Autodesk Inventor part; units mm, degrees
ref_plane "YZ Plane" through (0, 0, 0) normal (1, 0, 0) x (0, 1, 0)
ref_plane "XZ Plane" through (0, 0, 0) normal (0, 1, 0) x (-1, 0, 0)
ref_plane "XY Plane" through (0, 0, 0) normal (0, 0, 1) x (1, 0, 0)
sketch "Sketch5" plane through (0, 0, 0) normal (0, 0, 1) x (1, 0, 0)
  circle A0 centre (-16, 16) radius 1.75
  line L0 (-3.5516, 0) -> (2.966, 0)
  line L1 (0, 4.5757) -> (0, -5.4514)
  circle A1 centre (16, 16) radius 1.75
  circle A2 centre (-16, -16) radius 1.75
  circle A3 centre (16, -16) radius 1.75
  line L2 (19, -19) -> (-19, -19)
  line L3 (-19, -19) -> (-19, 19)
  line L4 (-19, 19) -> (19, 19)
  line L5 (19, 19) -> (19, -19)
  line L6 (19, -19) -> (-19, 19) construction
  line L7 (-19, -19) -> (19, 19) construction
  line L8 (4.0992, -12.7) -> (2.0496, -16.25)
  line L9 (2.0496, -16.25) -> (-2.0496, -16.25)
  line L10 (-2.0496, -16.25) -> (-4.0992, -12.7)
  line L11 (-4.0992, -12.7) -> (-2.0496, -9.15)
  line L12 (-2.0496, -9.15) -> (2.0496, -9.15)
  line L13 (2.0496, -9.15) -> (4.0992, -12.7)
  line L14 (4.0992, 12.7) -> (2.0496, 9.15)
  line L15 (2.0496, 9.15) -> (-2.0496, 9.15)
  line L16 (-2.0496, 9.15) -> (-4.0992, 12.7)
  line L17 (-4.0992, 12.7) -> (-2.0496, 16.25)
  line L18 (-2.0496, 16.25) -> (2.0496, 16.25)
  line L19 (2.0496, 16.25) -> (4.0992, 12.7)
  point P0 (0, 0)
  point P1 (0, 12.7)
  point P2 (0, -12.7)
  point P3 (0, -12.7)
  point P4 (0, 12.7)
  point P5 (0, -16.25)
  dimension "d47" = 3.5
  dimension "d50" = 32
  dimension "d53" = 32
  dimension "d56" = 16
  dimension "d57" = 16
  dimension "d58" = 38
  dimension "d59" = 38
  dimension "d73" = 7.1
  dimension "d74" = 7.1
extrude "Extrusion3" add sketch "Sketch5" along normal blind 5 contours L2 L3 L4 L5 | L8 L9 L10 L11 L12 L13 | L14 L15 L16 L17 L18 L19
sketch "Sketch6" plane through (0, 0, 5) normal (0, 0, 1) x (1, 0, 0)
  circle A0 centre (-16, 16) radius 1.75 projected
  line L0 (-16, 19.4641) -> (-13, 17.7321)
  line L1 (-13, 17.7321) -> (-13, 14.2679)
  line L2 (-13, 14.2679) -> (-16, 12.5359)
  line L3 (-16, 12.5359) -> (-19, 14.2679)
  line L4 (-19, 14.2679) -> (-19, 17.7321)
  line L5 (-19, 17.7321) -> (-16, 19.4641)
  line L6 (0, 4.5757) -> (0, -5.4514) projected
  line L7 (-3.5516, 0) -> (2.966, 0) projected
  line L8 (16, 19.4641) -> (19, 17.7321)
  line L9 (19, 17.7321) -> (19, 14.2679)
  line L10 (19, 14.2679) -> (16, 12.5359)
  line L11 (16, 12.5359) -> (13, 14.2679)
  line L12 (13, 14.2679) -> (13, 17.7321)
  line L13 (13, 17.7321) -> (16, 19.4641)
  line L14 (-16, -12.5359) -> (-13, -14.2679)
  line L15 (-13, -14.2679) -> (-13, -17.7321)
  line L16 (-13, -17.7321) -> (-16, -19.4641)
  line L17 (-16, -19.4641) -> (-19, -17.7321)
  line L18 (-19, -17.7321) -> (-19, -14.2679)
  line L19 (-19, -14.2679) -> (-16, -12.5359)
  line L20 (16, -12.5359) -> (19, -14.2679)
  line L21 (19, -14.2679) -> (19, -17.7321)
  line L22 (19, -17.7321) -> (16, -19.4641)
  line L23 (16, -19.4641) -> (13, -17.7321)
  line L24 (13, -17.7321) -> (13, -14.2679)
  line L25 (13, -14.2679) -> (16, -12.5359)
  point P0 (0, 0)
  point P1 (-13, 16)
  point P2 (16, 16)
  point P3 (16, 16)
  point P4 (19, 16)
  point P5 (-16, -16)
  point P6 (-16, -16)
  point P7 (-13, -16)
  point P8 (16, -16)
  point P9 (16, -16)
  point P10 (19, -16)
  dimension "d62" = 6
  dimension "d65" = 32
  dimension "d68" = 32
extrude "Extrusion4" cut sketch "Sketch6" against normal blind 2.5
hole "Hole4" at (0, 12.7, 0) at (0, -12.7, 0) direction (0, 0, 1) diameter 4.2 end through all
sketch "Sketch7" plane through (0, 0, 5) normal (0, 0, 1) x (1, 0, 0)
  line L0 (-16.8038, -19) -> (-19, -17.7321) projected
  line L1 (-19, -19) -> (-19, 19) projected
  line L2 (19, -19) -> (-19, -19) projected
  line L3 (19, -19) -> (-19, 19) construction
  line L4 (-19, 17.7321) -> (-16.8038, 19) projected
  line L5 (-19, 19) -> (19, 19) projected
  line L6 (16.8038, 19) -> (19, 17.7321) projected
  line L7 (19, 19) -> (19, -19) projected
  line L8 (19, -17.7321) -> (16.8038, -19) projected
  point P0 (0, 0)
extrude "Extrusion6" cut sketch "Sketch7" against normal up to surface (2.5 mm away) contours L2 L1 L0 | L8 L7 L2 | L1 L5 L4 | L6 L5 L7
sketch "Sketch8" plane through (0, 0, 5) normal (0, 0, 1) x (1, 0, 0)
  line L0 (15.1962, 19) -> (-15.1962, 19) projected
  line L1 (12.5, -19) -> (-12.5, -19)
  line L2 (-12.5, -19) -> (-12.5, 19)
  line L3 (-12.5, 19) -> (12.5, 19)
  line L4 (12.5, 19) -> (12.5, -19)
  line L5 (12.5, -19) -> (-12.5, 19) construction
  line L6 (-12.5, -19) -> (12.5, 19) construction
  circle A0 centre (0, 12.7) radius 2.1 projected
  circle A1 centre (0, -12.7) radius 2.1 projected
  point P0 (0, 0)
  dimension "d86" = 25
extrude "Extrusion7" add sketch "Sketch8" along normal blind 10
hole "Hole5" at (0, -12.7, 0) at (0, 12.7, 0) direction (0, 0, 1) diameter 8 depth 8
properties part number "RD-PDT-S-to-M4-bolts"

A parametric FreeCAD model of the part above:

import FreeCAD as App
import Part
import Sketcher
Q = App.Units.Quantity

doc = App.newDocument("Part")
body = doc.addObject("PartDesign::Body", "Body")

sketch1 = body.newObject("Sketcher::SketchObject", "Sketch")
sketch1.AttachmentSupport = (doc.getObject("XY_Plane"), [""])
sketch1.MapMode = "FlatFace"
sketch1.addGeometry([
    Part.LineSegment(App.Vector(-19, -19, 0), App.Vector(19, -19, 0)),
    Part.LineSegment(App.Vector(19, -19, 0), App.Vector(19, 19, 0)),
    Part.LineSegment(App.Vector(19, 19, 0), App.Vector(-19, 19, 0)),
    Part.LineSegment(App.Vector(-19, 19, 0), App.Vector(-19, -19, 0)),
    Part.Circle(App.Vector(-16, -16, 0), App.Vector(0, 0, 1), 1.8),
    Part.Circle(App.Vector(16, -16, 0), App.Vector(0, 0, 1), 1.8),
    Part.Circle(App.Vector(-16, 16, 0), App.Vector(0, 0, 1), 1.8),
    Part.Circle(App.Vector(16, 16, 0), App.Vector(0, 0, 1), 1.8),
], False)
sketch1.addConstraint([
    Sketcher.Constraint("Coincident", 0, 2, 1, 1),
    Sketcher.Constraint("Coincident", 1, 2, 2, 1),
    Sketcher.Constraint("Coincident", 2, 2, 3, 1),
    Sketcher.Constraint("Coincident", 3, 2, 0, 1),
    Sketcher.Constraint("Horizontal", 0),
    Sketcher.Constraint("Vertical", 1),
    Sketcher.Constraint("Horizontal", 2),
    Sketcher.Constraint("Vertical", 3),
    Sketcher.Constraint("Equal", 4, 5),
    Sketcher.Constraint("Equal", 5, 6),
    Sketcher.Constraint("Equal", 6, 7),
    Sketcher.Constraint("Symmetric", 5, 3, 6, 3, -1, 1),
    Sketcher.Constraint("Symmetric", 4, 3, 7, 3, -1, 1),
    Sketcher.Constraint("Symmetric", 0, 2, 2, 2, -1, 1),
    Sketcher.Constraint("Symmetric", 4, 3, 5, 3, -2),
    Sketcher.Constraint("Equal", 2, 1),
    Sketcher.Constraint("Diameter", 4, 3.5),
    Sketcher.Constraint("DistanceX", 0, 1, 0, 2, 38.0),
    Sketcher.Constraint("DistanceX", 4, 3, -1, 1, 16.0),
    Sketcher.Constraint("DistanceY", 4, 3, -1, 1, 16.0),
])
pad1 = body.newObject("PartDesign::Pad", "Pad")
pad1.Profile = sketch1
pad1.Length = 5

sketch2 = body.newObject("Sketcher::SketchObject", "Sketch001")
sketch2.AttachmentSupport = (doc.getObject("XY_Plane"), [""])
sketch2.MapMode = "FlatFace"
sketch2.AttachmentOffset = App.Placement(App.Vector(0, 0, 5), App.Rotation())
sketch2.addGeometry([
    Part.LineSegment(App.Vector(-13, 17.7, 0), App.Vector(-16, 19.5, 0)),
    Part.LineSegment(App.Vector(-16, 19.5, 0), App.Vector(-19, 17.7, 0)),
    Part.LineSegment(App.Vector(-19, 17.7, 0), App.Vector(-19, 14.3, 0)),
    Part.LineSegment(App.Vector(-19, 14.3, 0), App.Vector(-16, 12.5, 0)),
    Part.LineSegment(App.Vector(-16, 12.5, 0), App.Vector(-13, 14.3, 0)),
    Part.LineSegment(App.Vector(-13, 14.3, 0), App.Vector(-13, 17.7, 0)),
    Part.Circle(App.Vector(-16, 16, 0), App.Vector(0, 0, 1), 1.8),
    Part.LineSegment(App.Vector(19, 17.7, 0), App.Vector(16, 19.5, 0)),
    Part.LineSegment(App.Vector(16, 19.5, 0), App.Vector(13, 17.7, 0)),
    Part.LineSegment(App.Vector(13, 17.7, 0), App.Vector(13, 14.3, 0)),
    Part.LineSegment(App.Vector(13, 14.3, 0), App.Vector(16, 12.5, 0)),
    Part.LineSegment(App.Vector(16, 12.5, 0), App.Vector(19, 14.3, 0)),
    Part.LineSegment(App.Vector(19, 14.3, 0), App.Vector(19, 17.7, 0)),
    Part.LineSegment(App.Vector(-13, -14.3, 0), App.Vector(-16, -12.5, 0)),
    Part.LineSegment(App.Vector(-16, -12.5, 0), App.Vector(-19, -14.3, 0)),
    Part.LineSegment(App.Vector(-19, -14.3, 0), App.Vector(-19, -17.7, 0)),
    Part.LineSegment(App.Vector(-19, -17.7, 0), App.Vector(-16, -19.5, 0)),
    Part.LineSegment(App.Vector(-16, -19.5, 0), App.Vector(-13, -17.7, 0)),
    Part.LineSegment(App.Vector(-13, -17.7, 0), App.Vector(-13, -14.3, 0)),
    Part.LineSegment(App.Vector(19, -14.3, 0), App.Vector(16, -12.5, 0)),
    Part.LineSegment(App.Vector(16, -12.5, 0), App.Vector(13, -14.3, 0)),
    Part.LineSegment(App.Vector(13, -14.3, 0), App.Vector(13, -17.7, 0)),
    Part.LineSegment(App.Vector(13, -17.7, 0), App.Vector(16, -19.5, 0)),
    Part.LineSegment(App.Vector(16, -19.5, 0), App.Vector(19, -17.7, 0)),
    Part.LineSegment(App.Vector(19, -17.7, 0), App.Vector(19, -14.3, 0)),
], False)
sketch2.addConstraint([
    Sketcher.Constraint("Coincident", 0, 2, 1, 1),
    Sketcher.Constraint("Coincident", 1, 2, 2, 1),
    Sketcher.Constraint("Coincident", 2, 2, 3, 1),
    Sketcher.Constraint("Coincident", 3, 2, 4, 1),
    Sketcher.Constraint("Coincident", 4, 2, 5, 1),
    Sketcher.Constraint("Coincident", 5, 2, 0, 1),
    Sketcher.Constraint("Coincident", 7, 2, 8, 1),
    Sketcher.Constraint("Coincident", 8, 2, 9, 1),
    Sketcher.Constraint("Coincident", 9, 2, 10, 1),
    Sketcher.Constraint("Coincident", 10, 2, 11, 1),
    Sketcher.Constraint("Coincident", 11, 2, 12, 1),
    Sketcher.Constraint("Coincident", 12, 2, 7, 1),
    Sketcher.Constraint("Coincident", 13, 2, 14, 1),
    Sketcher.Constraint("Coincident", 14, 2, 15, 1),
    Sketcher.Constraint("Coincident", 15, 2, 16, 1),
    Sketcher.Constraint("Coincident", 16, 2, 17, 1),
    Sketcher.Constraint("Coincident", 17, 2, 18, 1),
    Sketcher.Constraint("Coincident", 18, 2, 13, 1),
    Sketcher.Constraint("Coincident", 19, 2, 20, 1),
    Sketcher.Constraint("Coincident", 20, 2, 21, 1),
    Sketcher.Constraint("Coincident", 21, 2, 22, 1),
    Sketcher.Constraint("Coincident", 22, 2, 23, 1),
    Sketcher.Constraint("Coincident", 23, 2, 24, 1),
    Sketcher.Constraint("Coincident", 24, 2, 19, 1),
    Sketcher.Constraint("Vertical", 2),
    Sketcher.Constraint("Vertical", 5),
    Sketcher.Constraint("Vertical", 9),
    Sketcher.Constraint("Vertical", 12),
    Sketcher.Constraint("Vertical", 15),
    Sketcher.Constraint("Vertical", 18),
    Sketcher.Constraint("Vertical", 21),
    Sketcher.Constraint("Vertical", 24),
    Sketcher.Constraint("Symmetric", 10, 2, 13, 2, -1, 1),
    Sketcher.Constraint("Symmetric", 11, 2, 14, 2, -1, 1),
    Sketcher.Constraint("Symmetric", 7, 2, 16, 2, -1, 1),
    Sketcher.Constraint("Symmetric", 8, 2, 17, 2, -1, 1),
    Sketcher.Constraint("Symmetric", 3, 2, 19, 2, -1, 1),
    Sketcher.Constraint("Symmetric", 4, 2, 20, 2, -1, 1),
    Sketcher.Constraint("Symmetric", 0, 2, 22, 2, -1, 1),
    Sketcher.Constraint("Symmetric", 1, 2, 23, 2, -1, 1),
    Sketcher.Constraint("Symmetric", 0, 2, 7, 2, -2),
    Sketcher.Constraint("Symmetric", 5, 2, 8, 2, -2),
    Sketcher.Constraint("Symmetric", 3, 2, 10, 2, -2),
    Sketcher.Constraint("Symmetric", 2, 2, 11, 2, -2),
    Sketcher.Constraint("Parallel", 0, 3),
    Sketcher.Constraint("Parallel", 1, 4),
    Sketcher.Constraint("Parallel", 3, 7),
    Sketcher.Constraint("Parallel", 4, 8),
    Sketcher.Constraint("Parallel", 7, 10),
    Sketcher.Constraint("Parallel", 10, 13),
    Sketcher.Constraint("Parallel", 13, 16),
    Sketcher.Constraint("Parallel", 16, 19),
    Sketcher.Constraint("Parallel", 19, 22),
    Sketcher.Constraint("Horizontal", 2, 2, 4, 2),
    Sketcher.Constraint("Horizontal", 1, 2, 5, 2),
    Sketcher.Constraint("Vertical", 6, 3, 0, 2),
    Sketcher.Constraint("DistanceX", 2, 2, 4, 2, 6.0),
    Sketcher.Constraint("DistanceX", 0, 2, 7, 2, 32.0),
    Sketcher.Constraint("DistanceY", 15, 2, 2, 2, 32.0),
    Sketcher.Constraint("Diameter", 6, 3.5),
    Sketcher.Constraint("Angle", 0, Q("150.0007 deg")),
    Sketcher.Constraint("DistanceY", -1, 1, 6, 3, 16.0),
    Sketcher.Constraint("DistanceY", 2, 2, 2, 1, 3.4642),
])
pocket1 = body.newObject("PartDesign::Pocket", "Pocket")
pocket1.Profile = sketch2
pocket1.Length = 2.5

sketch3 = body.newObject("Sketcher::SketchObject", "Sketch002")
sketch3.AttachmentSupport = (doc.getObject("XY_Plane"), [""])
sketch3.MapMode = "FlatFace"
sketch3.addGeometry([
    Part.Circle(App.Vector(0, 12.7, 0), App.Vector(0, 0, 1), 2.1),
    Part.Circle(App.Vector(0, -12.7, 0), App.Vector(0, 0, 1), 2.1),
], False)
sketch3.addConstraint([
    Sketcher.Constraint("Equal", 0, 1),
    Sketcher.Constraint("Symmetric", 0, 3, 1, 3, -1, 1),
    Sketcher.Constraint("PointOnObject", 0, 3, -2),
    Sketcher.Constraint("Diameter", 0, 4.2),
    Sketcher.Constraint("DistanceY", -1, 1, 0, 3, 12.7),
])
doc.recompute()
hole = body.newObject("PartDesign::Hole", "Hole")
hole.Profile = sketch3
hole.ThreadType = "None"
hole.Diameter = 4.2
hole.DepthType = "ThroughAll"
hole.Reversed = True

sketch4 = body.newObject("Sketcher::SketchObject", "Sketch003")
sketch4.AttachmentSupport = (doc.getObject("XY_Plane"), [""])
sketch4.MapMode = "FlatFace"
sketch4.AttachmentOffset = App.Placement(App.Vector(0, 0, 5), App.Rotation())
sketch4.addGeometry([
    Part.LineSegment(App.Vector(-19, -19, 0), App.Vector(-16.8, -19, 0)),
    Part.LineSegment(App.Vector(-16.8, -19, 0), App.Vector(-19, -17.7, 0)),
    Part.LineSegment(App.Vector(-19, -17.7, 0), App.Vector(-19, -19, 0)),
    Part.LineSegment(App.Vector(19, -17.7, 0), App.Vector(16.8, -19, 0)),
    Part.LineSegment(App.Vector(16.8, -19, 0), App.Vector(19, -19, 0)),
    Part.LineSegment(App.Vector(19, -19, 0), App.Vector(19, -17.7, 0)),
    Part.LineSegment(App.Vector(-19, 19, 0), App.Vector(-19, 17.7, 0)),
    Part.LineSegment(App.Vector(-19, 17.7, 0), App.Vector(-16.8, 19, 0)),
    Part.LineSegment(App.Vector(-16.8, 19, 0), App.Vector(-19, 19, 0)),
    Part.LineSegment(App.Vector(16.8, 19, 0), App.Vector(19, 17.7, 0)),
    Part.LineSegment(App.Vector(19, 17.7, 0), App.Vector(19, 19, 0)),
    Part.LineSegment(App.Vector(19, 19, 0), App.Vector(16.8, 19, 0)),
], False)
sketch4.addConstraint([
    Sketcher.Constraint("Coincident", 0, 2, 1, 1),
    Sketcher.Constraint("Coincident", 1, 2, 2, 1),
    Sketcher.Constraint("Coincident", 2, 2, 0, 1),
    Sketcher.Constraint("Coincident", 3, 2, 4, 1),
    Sketcher.Constraint("Coincident", 4, 2, 5, 1),
    Sketcher.Constraint("Coincident", 5, 2, 3, 1),
    Sketcher.Constraint("Coincident", 6, 2, 7, 1),
    Sketcher.Constraint("Coincident", 7, 2, 8, 1),
    Sketcher.Constraint("Coincident", 8, 2, 6, 1),
    Sketcher.Constraint("Coincident", 9, 2, 10, 1),
    Sketcher.Constraint("Coincident", 10, 2, 11, 1),
    Sketcher.Constraint("Coincident", 11, 2, 9, 1),
    Sketcher.Constraint("Horizontal", 0),
    Sketcher.Constraint("Vertical", 2),
    Sketcher.Constraint("Horizontal", 4),
    Sketcher.Constraint("Vertical", 5),
    Sketcher.Constraint("Vertical", 6),
    Sketcher.Constraint("Horizontal", 8),
    Sketcher.Constraint("Vertical", 10),
    Sketcher.Constraint("Horizontal", 11),
    Sketcher.Constraint("Symmetric", 5, 2, 6, 2, -1, 1),
    Sketcher.Constraint("Symmetric", 3, 2, 7, 2, -1, 1),
    Sketcher.Constraint("Symmetric", 1, 2, 9, 2, -1, 1),
    Sketcher.Constraint("Symmetric", 0, 2, 11, 2, -1, 1),
    Sketcher.Constraint("Symmetric", 0, 2, 3, 2, -2),
    Sketcher.Constraint("Symmetric", 1, 2, 5, 2, -2),
    Sketcher.Constraint("DistanceY", 0, 2, -1, 1, 19.0),
    Sketcher.Constraint("DistanceX", 1, 2, -1, 1, 19.0),
    Sketcher.Constraint("DistanceY", 2, 2, 2, 1, 1.268),
    Sketcher.Constraint("Distance", 1, 2.536),
])
pocket2 = body.newObject("PartDesign::Pocket", "Pocket001")
pocket2.Profile = sketch4
pocket2.Length = 2.5

sketch5 = body.newObject("Sketcher::SketchObject", "Sketch004")
sketch5.AttachmentSupport = (doc.getObject("XY_Plane"), [""])
sketch5.MapMode = "FlatFace"
sketch5.AttachmentOffset = App.Placement(App.Vector(0, 0, 5), App.Rotation())
sketch5.addGeometry([
    Part.LineSegment(App.Vector(12.5, -19, 0), App.Vector(12.5, 19, 0)),
    Part.LineSegment(App.Vector(12.5, 19, 0), App.Vector(-12.5, 19, 0)),
    Part.LineSegment(App.Vector(-12.5, 19, 0), App.Vector(-12.5, -19, 0)),
    Part.LineSegment(App.Vector(-12.5, -19, 0), App.Vector(12.5, -19, 0)),
    Part.Circle(App.Vector(0, -12.7, 0), App.Vector(0, 0, 1), 2.1),
    Part.Circle(App.Vector(0, 12.7, 0), App.Vector(0, 0, 1), 2.1),
], False)
sketch5.addConstraint([
    Sketcher.Constraint("Coincident", 0, 2, 1, 1),
    Sketcher.Constraint("Coincident", 1, 2, 2, 1),
    Sketcher.Constraint("Coincident", 2, 2, 3, 1),
    Sketcher.Constraint("Coincident", 3, 2, 0, 1),
    Sketcher.Constraint("Vertical", 0),
    Sketcher.Constraint("Horizontal", 1),
    Sketcher.Constraint("Vertical", 2),
    Sketcher.Constraint("Horizontal", 3),
    Sketcher.Constraint("Equal", 4, 5),
    Sketcher.Constraint("Symmetric", 4, 3, 5, 3, -1, 1),
    Sketcher.Constraint("Symmetric", 0, 2, 2, 2, -1, 1),
    Sketcher.Constraint("PointOnObject", 4, 3, -2),
    Sketcher.Constraint("DistanceX", 1, 2, 1, 1, 25.0),
    Sketcher.Constraint("Diameter", 4, 4.2),
    Sketcher.Constraint("DistanceY", 0, 1, 0, 2, 38.0),
    Sketcher.Constraint("DistanceY", 4, 3, -1, 1, 12.7),
])
pad2 = body.newObject("PartDesign::Pad", "Pad001")
pad2.Profile = sketch5
pad2.Length = 10

sketch6 = body.newObject("Sketcher::SketchObject", "Sketch005")
sketch6.AttachmentSupport = (doc.getObject("XY_Plane"), [""])
sketch6.MapMode = "FlatFace"
sketch6.addGeometry([
    Part.Circle(App.Vector(0, -12.7, 0), App.Vector(0, 0, 1), 4),
    Part.Circle(App.Vector(0, 12.7, 0), App.Vector(0, 0, 1), 4),
], False)
sketch6.addConstraint([
    Sketcher.Constraint("Equal", 0, 1),
    Sketcher.Constraint("Symmetric", 0, 3, 1, 3, -1, 1),
    Sketcher.Constraint("PointOnObject", 0, 3, -2),
    Sketcher.Constraint("Diameter", 0, 8.0),
    Sketcher.Constraint("DistanceY", 0, 3, -1, 1, 12.7),
])
doc.recompute()
hole2 = body.newObject("PartDesign::Hole", "Hole001")
hole2.Profile = sketch6
hole2.ThreadType = "None"
hole2.Diameter = 8
hole2.DepthType = "Dimension"
hole2.Depth = 8
hole2.DrillPoint = "Flat"
hole2.Reversed = True

doc.recompute()
